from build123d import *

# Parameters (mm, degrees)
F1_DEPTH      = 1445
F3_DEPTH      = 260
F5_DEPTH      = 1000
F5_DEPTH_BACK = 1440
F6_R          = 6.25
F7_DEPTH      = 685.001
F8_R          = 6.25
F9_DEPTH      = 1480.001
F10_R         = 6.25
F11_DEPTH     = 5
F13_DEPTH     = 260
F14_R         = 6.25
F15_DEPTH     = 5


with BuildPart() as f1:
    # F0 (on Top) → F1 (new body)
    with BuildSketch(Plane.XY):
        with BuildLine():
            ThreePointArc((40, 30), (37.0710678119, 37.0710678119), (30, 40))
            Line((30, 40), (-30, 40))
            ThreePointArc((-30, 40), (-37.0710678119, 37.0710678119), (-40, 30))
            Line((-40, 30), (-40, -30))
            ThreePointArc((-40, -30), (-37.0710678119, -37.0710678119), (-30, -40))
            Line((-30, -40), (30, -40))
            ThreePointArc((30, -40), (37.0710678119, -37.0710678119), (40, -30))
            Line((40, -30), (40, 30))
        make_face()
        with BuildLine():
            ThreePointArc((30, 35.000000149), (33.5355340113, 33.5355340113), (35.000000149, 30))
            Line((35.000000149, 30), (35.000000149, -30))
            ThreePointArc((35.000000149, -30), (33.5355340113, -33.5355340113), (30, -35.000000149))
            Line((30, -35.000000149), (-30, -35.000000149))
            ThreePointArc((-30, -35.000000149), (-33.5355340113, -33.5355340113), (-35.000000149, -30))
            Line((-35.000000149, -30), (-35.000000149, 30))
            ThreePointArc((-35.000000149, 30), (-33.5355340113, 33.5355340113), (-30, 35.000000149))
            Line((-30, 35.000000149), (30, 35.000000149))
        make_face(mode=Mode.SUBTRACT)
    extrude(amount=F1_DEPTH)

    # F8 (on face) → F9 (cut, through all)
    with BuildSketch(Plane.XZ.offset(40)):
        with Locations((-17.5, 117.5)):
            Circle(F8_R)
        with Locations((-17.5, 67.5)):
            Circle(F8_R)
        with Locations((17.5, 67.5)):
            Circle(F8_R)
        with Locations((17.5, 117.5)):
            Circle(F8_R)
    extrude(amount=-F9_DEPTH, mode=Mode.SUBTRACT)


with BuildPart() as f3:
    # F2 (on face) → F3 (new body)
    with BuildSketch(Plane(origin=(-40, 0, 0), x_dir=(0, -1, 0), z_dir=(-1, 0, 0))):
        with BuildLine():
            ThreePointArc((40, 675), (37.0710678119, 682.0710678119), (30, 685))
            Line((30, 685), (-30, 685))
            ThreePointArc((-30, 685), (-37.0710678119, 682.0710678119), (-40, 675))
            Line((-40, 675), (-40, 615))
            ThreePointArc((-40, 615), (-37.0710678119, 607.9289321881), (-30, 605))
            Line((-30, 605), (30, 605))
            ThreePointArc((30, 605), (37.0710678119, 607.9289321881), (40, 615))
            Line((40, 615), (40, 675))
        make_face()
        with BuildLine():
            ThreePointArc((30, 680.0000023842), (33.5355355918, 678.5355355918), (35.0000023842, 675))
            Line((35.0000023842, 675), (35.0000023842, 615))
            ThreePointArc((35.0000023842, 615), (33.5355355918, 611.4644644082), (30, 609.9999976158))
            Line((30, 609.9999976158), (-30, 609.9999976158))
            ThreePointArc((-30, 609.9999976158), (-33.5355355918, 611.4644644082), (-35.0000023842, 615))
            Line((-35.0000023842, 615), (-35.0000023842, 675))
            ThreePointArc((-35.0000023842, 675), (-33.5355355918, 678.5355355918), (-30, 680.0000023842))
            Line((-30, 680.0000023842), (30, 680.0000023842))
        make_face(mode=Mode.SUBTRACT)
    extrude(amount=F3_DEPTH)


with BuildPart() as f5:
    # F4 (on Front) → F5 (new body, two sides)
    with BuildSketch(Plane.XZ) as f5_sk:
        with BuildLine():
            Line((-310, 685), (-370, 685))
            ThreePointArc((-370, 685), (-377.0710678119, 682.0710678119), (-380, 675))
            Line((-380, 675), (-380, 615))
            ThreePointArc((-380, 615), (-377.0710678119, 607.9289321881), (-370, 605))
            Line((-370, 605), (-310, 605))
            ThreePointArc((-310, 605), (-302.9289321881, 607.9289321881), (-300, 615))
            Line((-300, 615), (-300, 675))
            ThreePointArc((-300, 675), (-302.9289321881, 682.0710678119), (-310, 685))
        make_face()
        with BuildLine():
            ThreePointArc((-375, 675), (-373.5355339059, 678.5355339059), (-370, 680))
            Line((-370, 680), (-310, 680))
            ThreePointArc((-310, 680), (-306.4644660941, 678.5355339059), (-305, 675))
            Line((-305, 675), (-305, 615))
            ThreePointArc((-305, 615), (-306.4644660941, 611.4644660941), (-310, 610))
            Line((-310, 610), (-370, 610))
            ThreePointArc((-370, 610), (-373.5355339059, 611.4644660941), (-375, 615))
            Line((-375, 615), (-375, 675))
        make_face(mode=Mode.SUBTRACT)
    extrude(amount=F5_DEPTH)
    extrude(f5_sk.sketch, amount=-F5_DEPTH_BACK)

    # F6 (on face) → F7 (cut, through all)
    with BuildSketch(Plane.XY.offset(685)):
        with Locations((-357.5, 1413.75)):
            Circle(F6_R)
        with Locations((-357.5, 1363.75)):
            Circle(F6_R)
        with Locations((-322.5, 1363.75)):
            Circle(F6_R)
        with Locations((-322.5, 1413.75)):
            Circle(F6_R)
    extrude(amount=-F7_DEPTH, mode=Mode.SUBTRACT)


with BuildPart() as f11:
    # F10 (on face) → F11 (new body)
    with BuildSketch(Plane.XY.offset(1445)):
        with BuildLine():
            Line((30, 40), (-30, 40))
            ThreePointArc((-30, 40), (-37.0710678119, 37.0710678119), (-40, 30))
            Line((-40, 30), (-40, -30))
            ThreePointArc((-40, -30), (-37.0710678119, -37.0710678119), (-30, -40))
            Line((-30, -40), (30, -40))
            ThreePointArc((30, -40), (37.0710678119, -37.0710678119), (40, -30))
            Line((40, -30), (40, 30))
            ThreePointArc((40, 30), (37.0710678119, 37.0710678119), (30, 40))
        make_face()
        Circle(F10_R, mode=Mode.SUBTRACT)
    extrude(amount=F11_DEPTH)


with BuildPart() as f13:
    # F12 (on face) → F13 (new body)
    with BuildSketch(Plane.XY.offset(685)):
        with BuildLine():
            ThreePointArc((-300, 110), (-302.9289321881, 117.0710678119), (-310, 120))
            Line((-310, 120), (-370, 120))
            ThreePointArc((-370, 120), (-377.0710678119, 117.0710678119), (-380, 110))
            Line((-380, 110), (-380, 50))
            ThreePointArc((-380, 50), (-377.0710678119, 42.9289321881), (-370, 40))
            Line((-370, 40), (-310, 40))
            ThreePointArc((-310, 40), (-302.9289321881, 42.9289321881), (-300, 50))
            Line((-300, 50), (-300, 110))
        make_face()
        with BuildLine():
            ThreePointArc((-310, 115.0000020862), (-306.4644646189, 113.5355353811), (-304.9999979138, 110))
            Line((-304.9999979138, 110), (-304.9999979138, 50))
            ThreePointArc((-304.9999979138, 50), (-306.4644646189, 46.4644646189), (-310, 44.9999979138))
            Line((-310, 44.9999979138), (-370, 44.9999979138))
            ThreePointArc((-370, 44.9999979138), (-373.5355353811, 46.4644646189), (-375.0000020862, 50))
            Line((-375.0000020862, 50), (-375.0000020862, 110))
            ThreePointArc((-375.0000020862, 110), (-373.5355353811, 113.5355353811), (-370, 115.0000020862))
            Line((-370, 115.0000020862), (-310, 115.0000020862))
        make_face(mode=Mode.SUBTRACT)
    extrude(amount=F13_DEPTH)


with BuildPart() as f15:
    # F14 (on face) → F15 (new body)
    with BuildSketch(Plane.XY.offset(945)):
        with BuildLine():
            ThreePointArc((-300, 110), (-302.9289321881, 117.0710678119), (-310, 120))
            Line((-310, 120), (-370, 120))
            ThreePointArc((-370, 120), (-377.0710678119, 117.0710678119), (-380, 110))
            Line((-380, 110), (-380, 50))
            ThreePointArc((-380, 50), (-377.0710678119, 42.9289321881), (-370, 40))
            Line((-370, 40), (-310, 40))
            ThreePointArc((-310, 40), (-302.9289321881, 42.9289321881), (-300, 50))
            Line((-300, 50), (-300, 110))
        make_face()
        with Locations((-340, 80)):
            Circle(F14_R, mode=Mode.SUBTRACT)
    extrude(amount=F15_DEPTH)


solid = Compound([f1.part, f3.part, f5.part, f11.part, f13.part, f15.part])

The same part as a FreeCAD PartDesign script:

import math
import FreeCAD as App
import Part
import Sketcher
from FreeCAD import Vector

doc = App.newDocument("Part")
params = doc.addObject("Spreadsheet::Sheet", "Params")
for row, (alias, value) in enumerate([
    ("sketch1_radius", "10 mm"),
    ("sketch1_radius2", "5 mm"),
    ("sketch1_width", "60 mm"),
    ("pad1_length", "1445 mm"),
    ("sketch2_diameter", "12.5 mm"),
    ("sketch3_radius", "10 mm"),
    ("sketch3_width", "60 mm"),
    ("pad2_length", "260 mm"),
    ("sketch4_radius", "10 mm"),
    ("sketch4_radius2", "5 mm"),
    ("sketch4_width", "60 mm"),
    ("pad3_length", "1000 mm"),
    ("pad3_length2", "1440 mm"),
    ("sketch5_diameter", "12.5 mm"),
    ("sketch6_radius", "10 mm"),
    ("sketch6_diameter", "12.5 mm"),
    ("sketch6_width", "60 mm"),
    ("pad4_length", "5 mm"),
    ("sketch7_radius", "10 mm"),
    ("sketch7_width", "60 mm"),
    ("pad5_length", "260 mm"),
    ("sketch8_radius", "10 mm"),
    ("sketch8_diameter", "12.5 mm"),
    ("sketch8_width", "60 mm"),
    ("pad6_length", "5 mm"),
], start=1):
    params.set(f"A{row}", alias)
    params.set(f"B{row}", "=" + value)
    params.setAlias(f"B{row}", alias)

body = doc.addObject("PartDesign::Body", "Body")

# Sketch on XY plane
sketch1 = body.newObject("Sketcher::SketchObject", "Sketch")
sketch1.AttachmentSupport = (doc.getObject("XY_Plane"), [""])
sketch1.MapMode = "FlatFace"
sketch1.addGeometry(Part.ArcOfCircle(Part.Circle(Vector(30, 30, 0), Vector(0, 0, 1), 10), math.radians(0), math.radians(90)), False)
sketch1.addGeometry(Part.LineSegment(Vector(30, 40, 0), Vector(-30, 40, 0)), False)
sketch1.addGeometry(Part.ArcOfCircle(Part.Circle(Vector(-30, 30, 0), Vector(0, 0, 1), 10), math.radians(90), math.radians(180)), False)
sketch1.addGeometry(Part.LineSegment(Vector(-40, 30, 0), Vector(-40, -30, 0)), False)
sketch1.addGeometry(Part.ArcOfCircle(Part.Circle(Vector(-30, -30, 0), Vector(0, 0, 1), 10), math.radians(180), math.radians(270)), False)
sketch1.addGeometry(Part.LineSegment(Vector(-30, -40, 0), Vector(30, -40, 0)), False)
sketch1.addGeometry(Part.ArcOfCircle(Part.Circle(Vector(30, -30, 0), Vector(0, 0, 1), 10), math.radians(-90), math.radians(0)), False)
sketch1.addGeometry(Part.LineSegment(Vector(40, -30, 0), Vector(40, 30, 0)), False)
sketch1.addGeometry(Part.LineSegment(Vector(-30, 35, 0), Vector(30, 35, 0)), False)
sketch1.addGeometry(Part.ArcOfCircle(Part.Circle(Vector(30, 30, 0), Vector(0, 0, 1), 5), math.radians(0), math.radians(90)), False)
sketch1.addGeometry(Part.LineSegment(Vector(35, 30, 0), Vector(35, -30, 0)), False)
sketch1.addGeometry(Part.ArcOfCircle(Part.Circle(Vector(30, -30, 0), Vector(0, 0, 1), 5), math.radians(-90), math.radians(0)), False)
sketch1.addGeometry(Part.LineSegment(Vector(30, -35, 0), Vector(-30, -35, 0)), False)
sketch1.addGeometry(Part.ArcOfCircle(Part.Circle(Vector(-30, -30, 0), Vector(0, 0, 1), 5), math.radians(180), math.radians(270)), False)
sketch1.addGeometry(Part.LineSegment(Vector(-35, -30, 0), Vector(-35, 30, 0)), False)
sketch1.addGeometry(Part.ArcOfCircle(Part.Circle(Vector(-30, 30, 0), Vector(0, 0, 1), 5), math.radians(90), math.radians(180)), False)
sketch1.addConstraint(Sketcher.Constraint("Tangent", 0, 2, 1, 1))
sketch1.addConstraint(Sketcher.Constraint("Tangent", 1, 2, 2, 1))
sketch1.addConstraint(Sketcher.Constraint("Tangent", 2, 2, 3, 1))
sketch1.addConstraint(Sketcher.Constraint("Tangent", 3, 2, 4, 1))
sketch1.addConstraint(Sketcher.Constraint("Tangent", 4, 2, 5, 1))
sketch1.addConstraint(Sketcher.Constraint("Tangent", 5, 2, 6, 1))
sketch1.addConstraint(Sketcher.Constraint("Tangent", 6, 2, 7, 1))
sketch1.addConstraint(Sketcher.Constraint("Tangent", 7, 2, 0, 1))
sketch1.addConstraint(Sketcher.Constraint("Tangent", 8, 2, 9, 2))
sketch1.addConstraint(Sketcher.Constraint("Tangent", 9, 1, 10, 1))
sketch1.addConstraint(Sketcher.Constraint("Tangent", 10, 2, 11, 2))
sketch1.addConstraint(Sketcher.Constraint("Tangent", 11, 1, 12, 1))
sketch1.addConstraint(Sketcher.Constraint("Tangent", 12, 2, 13, 2))
sketch1.addConstraint(Sketcher.Constraint("Tangent", 13, 1, 14, 1))
sketch1.addConstraint(Sketcher.Constraint("Tangent", 14, 2, 15, 2))
sketch1.addConstraint(Sketcher.Constraint("Tangent", 15, 1, 8, 1))
sketch1.addConstraint(Sketcher.Constraint("Horizontal", 1))
sketch1.addConstraint(Sketcher.Constraint("Vertical", 3))
sketch1.addConstraint(Sketcher.Constraint("Horizontal", 5))
sketch1.addConstraint(Sketcher.Constraint("Vertical", 7))
sketch1.addConstraint(Sketcher.Constraint("Horizontal", 8))
sketch1.addConstraint(Sketcher.Constraint("Vertical", 10))
sketch1.addConstraint(Sketcher.Constraint("Horizontal", 12))
sketch1.addConstraint(Sketcher.Constraint("Vertical", 14))
sketch1.addConstraint(Sketcher.Constraint("Coincident", 9, 3, 0, 3))
sketch1.addConstraint(Sketcher.Constraint("Coincident", 11, 3, 6, 3))
sketch1.addConstraint(Sketcher.Constraint("Coincident", 13, 3, 4, 3))
sketch1.addConstraint(Sketcher.Constraint("Equal", 0, 2))
sketch1.addConstraint(Sketcher.Constraint("Equal", 2, 4))
sketch1.addConstraint(Sketcher.Constraint("Equal", 4, 6))
sketch1.addConstraint(Sketcher.Constraint("Equal", 13, 15))
sketch1.addConstraint(Sketcher.Constraint("Symmetric", 0, 3, 4, 3, -1, 1))
sketch1.addConstraint(Sketcher.Constraint("Equal", 12, 3))
sketch1.addConstraint(Sketcher.Constraint("Radius", 0, 10.0))
sketch1.addConstraint(Sketcher.Constraint("Radius", 9, 5.0))
sketch1.addConstraint(Sketcher.Constraint("DistanceX", 1, 2, 1, 1, 60.0))
sketch1.setExpression("Constraints[33]", "Params.sketch1_radius")
sketch1.setExpression("Constraints[34]", "Params.sketch1_radius2")
sketch1.setExpression("Constraints[35]", "Params.sketch1_width")
pad1 = body.newObject("PartDesign::Pad", "Pad")
pad1.Profile = sketch1
pad1.setExpression("Length", "Params.pad1_length")

# Sketch on XZ plane
sketch2 = body.newObject("Sketcher::SketchObject", "Sketch001")
sketch2.AttachmentSupport = (doc.getObject("XZ_Plane"), [""])
sketch2.MapMode = "FlatFace"
sketch2.AttachmentOffset = App.Placement(Vector(0, 0, 40), App.Rotation())
sketch2.addGeometry(Part.Circle(Vector(-18, 118, 0), Vector(0, 0, 1), 6), False)
sketch2.addGeometry(Part.Circle(Vector(-18, 68, 0), Vector(0, 0, 1), 6), False)
sketch2.addGeometry(Part.Circle(Vector(18, 68, 0), Vector(0, 0, 1), 6), False)
sketch2.addGeometry(Part.Circle(Vector(18, 118, 0), Vector(0, 0, 1), 6), False)
sketch2.addConstraint(Sketcher.Constraint("Equal", 0, 1))
sketch2.addConstraint(Sketcher.Constraint("Equal", 1, 2))
sketch2.addConstraint(Sketcher.Constraint("Equal", 2, 3))
sketch2.addConstraint(Sketcher.Constraint("Symmetric", 1, 3, 2, 3, -2))
sketch2.addConstraint(Sketcher.Constraint("Symmetric", 0, 3, 3, 3, -2))
sketch2.addConstraint(Sketcher.Constraint("Vertical", 0, 3, 1, 3))
sketch2.addConstraint(Sketcher.Constraint("Diameter", 0, 12.5))
sketch2.addConstraint(Sketcher.Constraint("DistanceY", 1, 3, 0, 3, 50.0))
sketch2.addConstraint(Sketcher.Constraint("DistanceX", 1, 3, 2, 3, 35.0))
sketch2.addConstraint(Sketcher.Constraint("DistanceY", -1, 1, 0, 3, 117.5))
sketch2.setExpression("Constraints[6]", "Params.sketch2_diameter")
pocket1 = body.newObject("PartDesign::Pocket", "Pocket")
pocket1.Profile = sketch2
pocket1.Type = "ThroughAll"
body2 = doc.addObject("PartDesign::Body", "Body001")

# Sketch on YZ plane
sketch3 = body2.newObject("Sketcher::SketchObject", "Sketch002")
sketch3.AttachmentSupport = (doc.getObject("YZ_Plane001"), [""])
sketch3.MapMode = "FlatFace"
sketch3.AttachmentOffset = App.Placement(Vector(0, 0, -40), App.Rotation())
sketch3.addGeometry(Part.ArcOfCircle(Part.Circle(Vector(-30, 675, 0), Vector(0, 0, 1), 10), math.radians(90), math.radians(180)), False)
sketch3.addGeometry(Part.LineSegment(Vector(-30, 685, 0), Vector(30, 685, 0)), False)
sketch3.addGeometry(Part.ArcOfCircle(Part.Circle(Vector(30, 675, 0), Vector(0, 0, 1), 10), math.radians(0), math.radians(90)), False)
sketch3.addGeometry(Part.LineSegment(Vector(40, 675, 0), Vector(40, 615, 0)), False)
sketch3.addGeometry(Part.ArcOfCircle(Part.Circle(Vector(30, 615, 0), Vector(0, 0, 1), 10), math.radians(-90), math.radians(0)), False)
sketch3.addGeometry(Part.LineSegment(Vector(30, 605, 0), Vector(-30, 605, 0)), False)
sketch3.addGeometry(Part.ArcOfCircle(Part.Circle(Vector(-30, 615, 0), Vector(0, 0, 1), 10), math.radians(180), math.radians(270)), False)
sketch3.addGeometry(Part.LineSegment(Vector(-40, 615, 0), Vector(-40, 675, 0)), False)
sketch3.addGeometry(Part.LineSegment(Vector(30, 680, 0), Vector(-30, 680, 0)), False)
sketch3.addGeometry(Part.ArcOfCircle(Part.Circle(Vector(-30, 675, 0), Vector(0, 0, 1), 5), math.radians(90), math.radians(180)), False)
sketch3.addGeometry(Part.LineSegment(Vector(-35, 675, 0), Vector(-35, 615, 0)), False)
sketch3.addGeometry(Part.ArcOfCircle(Part.Circle(Vector(-30, 615, 0), Vector(0, 0, 1), 5), math.radians(180), math.radians(270)), False)
sketch3.addGeometry(Part.LineSegment(Vector(-30, 610, 0), Vector(30, 610, 0)), False)
sketch3.addGeometry(Part.ArcOfCircle(Part.Circle(Vector(30, 615, 0), Vector(0, 0, 1), 5), math.radians(-90), math.radians(0)), False)
sketch3.addGeometry(Part.LineSegment(Vector(35, 615, 0), Vector(35, 675, 0)), False)
sketch3.addGeometry(Part.ArcOfCircle(Part.Circle(Vector(30, 675, 0), Vector(0, 0, 1), 5), math.radians(0), math.radians(90)), False)
sketch3.addConstraint(Sketcher.Constraint("Tangent", 0, 1, 1, 1))
sketch3.addConstraint(Sketcher.Constraint("Tangent", 1, 2, 2, 2))
sketch3.addConstraint(Sketcher.Constraint("Tangent", 2, 1, 3, 1))
sketch3.addConstraint(Sketcher.Constraint("Tangent", 3, 2, 4, 2))
sketch3.addConstraint(Sketcher.Constraint("Tangent", 4, 1, 5, 1))
sketch3.addConstraint(Sketcher.Constraint("Tangent", 5, 2, 6, 2))
sketch3.addConstraint(Sketcher.Constraint("Tangent", 6, 1, 7, 1))
sketch3.addConstraint(Sketcher.Constraint("Tangent", 7, 2, 0, 2))
sketch3.addConstraint(Sketcher.Constraint("Tangent", 8, 2, 9, 1))
sketch3.addConstraint(Sketcher.Constraint("Tangent", 9, 2, 10, 1))
sketch3.addConstraint(Sketcher.Constraint("Tangent", 10, 2, 11, 1))
sketch3.addConstraint(Sketcher.Constraint("Tangent", 11, 2, 12, 1))
sketch3.addConstraint(Sketcher.Constraint("Tangent", 12, 2, 13, 1))
sketch3.addConstraint(Sketcher.Constraint("Tangent", 13, 2, 14, 1))
sketch3.addConstraint(Sketcher.Constraint("Tangent", 14, 2, 15, 1))
sketch3.addConstraint(Sketcher.Constraint("Tangent", 15, 2, 8, 1))
sketch3.addConstraint(Sketcher.Constraint("Horizontal", 1))
sketch3.addConstraint(Sketcher.Constraint("Vertical", 3))
sketch3.addConstraint(Sketcher.Constraint("Horizontal", 5))
sketch3.addConstraint(Sketcher.Constraint("Vertical", 7))
sketch3.addConstraint(Sketcher.Constraint("Horizontal", 8))
sketch3.addConstraint(Sketcher.Constraint("Vertical", 10))
sketch3.addConstraint(Sketcher.Constraint("Horizontal", 12))
sketch3.addConstraint(Sketcher.Constraint("Vertical", 14))
sketch3.addConstraint(Sketcher.Constraint("Coincident", 9, 3, 0, 3))
sketch3.addConstraint(Sketcher.Constraint("Coincident", 11, 3, 6, 3))
sketch3.addConstraint(Sketcher.Constraint("Coincident", 13, 3, 4, 3))
sketch3.addConstraint(Sketcher.Constraint("Equal", 0, 2))
sketch3.addConstraint(Sketcher.Constraint("Equal", 2, 4))
sketch3.addConstraint(Sketcher.Constraint("Equal", 4, 6))
sketch3.addConstraint(Sketcher.Constraint("Equal", 13, 15))
sketch3.addConstraint(Sketcher.Constraint("Equal", 12, 3))
sketch3.addConstraint(Sketcher.Constraint("Radius", 0, 10.0))
sketch3.addConstraint(Sketcher.Constraint("DistanceX", 1, 1, 1, 2, 60.0))
sketch3.addConstraint(Sketcher.Constraint("DistanceX", 0, 3, -1, 1, 30.0))
sketch3.addConstraint(Sketcher.Constraint("DistanceY", -1, 1, 0, 3, 675.0))
sketch3.addConstraint(Sketcher.Constraint("Radius", 9, 5.000002))
sketch3.setExpression("Constraints[32]", "Params.sketch3_radius")
sketch3.setExpression("Constraints[33]", "Params.sketch3_width")
pad2 = body2.newObject("PartDesign::Pad", "Pad001")
pad2.Profile = sketch3
pad2.setExpression("Length", "Params.pad2_length")
pad2.Reversed = True
body3 = doc.addObject("PartDesign::Body", "Body002")

# Sketch on XZ plane
sketch4 = body3.newObject("Sketcher::SketchObject", "Sketch003")
sketch4.AttachmentSupport = (doc.getObject("XZ_Plane002"), [""])
sketch4.MapMode = "FlatFace"
sketch4.addGeometry(Part.LineSegment(Vector(-310, 685, 0), Vector(-370, 685, 0)), False)
sketch4.addGeometry(Part.ArcOfCircle(Part.Circle(Vector(-370, 675, 0), Vector(0, 0, 1), 10), math.radians(90), math.radians(180)), False)
sketch4.addGeometry(Part.LineSegment(Vector(-380, 675, 0), Vector(-380, 615, 0)), False)
sketch4.addGeometry(Part.ArcOfCircle(Part.Circle(Vector(-370, 615, 0), Vector(0, 0, 1), 10), math.radians(180), math.radians(270)), False)
sketch4.addGeometry(Part.LineSegment(Vector(-370, 605, 0), Vector(-310, 605, 0)), False)
sketch4.addGeometry(Part.ArcOfCircle(Part.Circle(Vector(-310, 615, 0), Vector(0, 0, 1), 10), math.radians(-90), math.radians(0)), False)
sketch4.addGeometry(Part.LineSegment(Vector(-300, 615, 0), Vector(-300, 675, 0)), False)
sketch4.addGeometry(Part.ArcOfCircle(Part.Circle(Vector(-310, 675, 0), Vector(0, 0, 1), 10), math.radians(0), math.radians(90)), False)
sketch4.addGeometry(Part.LineSegment(Vector(-375, 615, 0), Vector(-375, 675, 0)), False)
sketch4.addGeometry(Part.ArcOfCircle(Part.Circle(Vector(-370, 675, 0), Vector(0, 0, 1), 5), math.radians(90), math.radians(180)), False)
sketch4.addGeometry(Part.LineSegment(Vector(-370, 680, 0), Vector(-310, 680, 0)), False)
sketch4.addGeometry(Part.ArcOfCircle(Part.Circle(Vector(-310, 675, 0), Vector(0, 0, 1), 5), math.radians(0), math.radians(90)), False)
sketch4.addGeometry(Part.LineSegment(Vector(-305, 675, 0), Vector(-305, 615, 0)), False)
sketch4.addGeometry(Part.ArcOfCircle(Part.Circle(Vector(-310, 615, 0), Vector(0, 0, 1), 5), math.radians(-90), math.radians(0)), False)
sketch4.addGeometry(Part.LineSegment(Vector(-310, 610, 0), Vector(-370, 610, 0)), False)
sketch4.addGeometry(Part.ArcOfCircle(Part.Circle(Vector(-370, 615, 0), Vector(0, 0, 1), 5), math.radians(180), math.radians(270)), False)
sketch4.addConstraint(Sketcher.Constraint("Tangent", 0, 2, 1, 1))
sketch4.addConstraint(Sketcher.Constraint("Tangent", 1, 2, 2, 1))
sketch4.addConstraint(Sketcher.Constraint("Tangent", 2, 2, 3, 1))
sketch4.addConstraint(Sketcher.Constraint("Tangent", 3, 2, 4, 1))
sketch4.addConstraint(Sketcher.Constraint("Tangent", 4, 2, 5, 1))
sketch4.addConstraint(Sketcher.Constraint("Tangent", 5, 2, 6, 1))
sketch4.addConstraint(Sketcher.Constraint("Tangent", 6, 2, 7, 1))
sketch4.addConstraint(Sketcher.Constraint("Tangent", 7, 2, 0, 1))
sketch4.addConstraint(Sketcher.Constraint("Tangent", 8, 2, 9, 2))
sketch4.addConstraint(Sketcher.Constraint("Tangent", 9, 1, 10, 1))
sketch4.addConstraint(Sketcher.Constraint("Tangent", 10, 2, 11, 2))
sketch4.addConstraint(Sketcher.Constraint("Tangent", 11, 1, 12, 1))
sketch4.addConstraint(Sketcher.Constraint("Tangent", 12, 2, 13, 2))
sketch4.addConstraint(Sketcher.Constraint("Tangent", 13, 1, 14, 1))
sketch4.addConstraint(Sketcher.Constraint("Tangent", 14, 2, 15, 2))
sketch4.addConstraint(Sketcher.Constraint("Tangent", 15, 1, 8, 1))
sketch4.addConstraint(Sketcher.Constraint("Horizontal", 0))
sketch4.addConstraint(Sketcher.Constraint("Vertical", 2))
sketch4.addConstraint(Sketcher.Constraint("Horizontal", 4))
sketch4.addConstraint(Sketcher.Constraint("Vertical", 6))
sketch4.addConstraint(Sketcher.Constraint("Vertical", 8))
sketch4.addConstraint(Sketcher.Constraint("Horizontal", 10))
sketch4.addConstraint(Sketcher.Constraint("Vertical", 12))
sketch4.addConstraint(Sketcher.Constraint("Horizontal", 14))
sketch4.addConstraint(Sketcher.Constraint("Coincident", 9, 3, 1, 3))
sketch4.addConstraint(Sketcher.Constraint("Coincident", 11, 3, 7, 3))
sketch4.addConstraint(Sketcher.Constraint("Coincident", 13, 3, 5, 3))
sketch4.addConstraint(Sketcher.Constraint("Equal", 1, 3))
sketch4.addConstraint(Sketcher.Constraint("Equal", 3, 5))
sketch4.addConstraint(Sketcher.Constraint("Equal", 5, 7))
sketch4.addConstraint(Sketcher.Constraint("Equal", 13, 15))
sketch4.addConstraint(Sketcher.Constraint("Equal", 14, 2))
sketch4.addConstraint(Sketcher.Constraint("Radius", 1, 10.0))
sketch4.addConstraint(Sketcher.Constraint("Radius", 9, 5.0))
sketch4.addConstraint(Sketcher.Constraint("DistanceX", 0, 2, 0, 1, 60.0))
sketch4.addConstraint(Sketcher.Constraint("DistanceX", 1, 3, -1, 1, 370.0))
sketch4.addConstraint(Sketcher.Constraint("DistanceY", -1, 1, 1, 3, 675.0))
sketch4.setExpression("Constraints[32]", "Params.sketch4_radius")
sketch4.setExpression("Constraints[33]", "Params.sketch4_radius2")
sketch4.setExpression("Constraints[34]", "Params.sketch4_width")
pad3 = body3.newObject("PartDesign::Pad", "Pad002")
pad3.Profile = sketch4
pad3.Type = "TwoLengths"
pad3.setExpression("Length", "Params.pad3_length")
pad3.setExpression("Length2", "Params.pad3_length2")

# Sketch on XY plane
sketch5 = body3.newObject("Sketcher::SketchObject", "Sketch004")
sketch5.AttachmentSupport = (doc.getObject("XY_Plane002"), [""])
sketch5.MapMode = "FlatFace"
sketch5.AttachmentOffset = App.Placement(Vector(0, 0, 685), App.Rotation())
sketch5.addGeometry(Part.Circle(Vector(-358, 1414, 0), Vector(0, 0, 1), 6), False)
sketch5.addGeometry(Part.Circle(Vector(-358, 1364, 0), Vector(0, 0, 1), 6), False)
sketch5.addGeometry(Part.Circle(Vector(-322, 1364, 0), Vector(0, 0, 1), 6), False)
sketch5.addGeometry(Part.Circle(Vector(-322, 1414, 0), Vector(0, 0, 1), 6), False)
sketch5.addConstraint(Sketcher.Constraint("Equal", 0, 1))
sketch5.addConstraint(Sketcher.Constraint("Equal", 1, 2))
sketch5.addConstraint(Sketcher.Constraint("Equal", 2, 3))
sketch5.addConstraint(Sketcher.Constraint("Horizontal", 1, 3, 2, 3))
sketch5.addConstraint(Sketcher.Constraint("Horizontal", 0, 3, 3, 3))
sketch5.addConstraint(Sketcher.Constraint("Vertical", 0, 3, 1, 3))
sketch5.addConstraint(Sketcher.Constraint("Vertical", 2, 3, 3, 3))
sketch5.addConstraint(Sketcher.Constraint("Diameter", 0, 12.5))
sketch5.addConstraint(Sketcher.Constraint("DistanceY", 1, 3, 0, 3, 50.0))
sketch5.addConstraint(Sketcher.Constraint("DistanceX", 1, 3, 2, 3, 35.0))
sketch5.addConstraint(Sketcher.Constraint("DistanceX", 0, 3, -1, 1, 357.5))
sketch5.addConstraint(Sketcher.Constraint("DistanceY", -1, 1, 0, 3, 1413.75))
sketch5.setExpression("Constraints[7]", "Params.sketch5_diameter")
pocket2 = body3.newObject("PartDesign::Pocket", "Pocket001")
pocket2.Profile = sketch5
pocket2.Type = "ThroughAll"
body4 = doc.addObject("PartDesign::Body", "Body003")

# Sketch on XY plane
sketch6 = body4.newObject("Sketcher::SketchObject", "Sketch005")
sketch6.AttachmentSupport = (doc.getObject("XY_Plane003"), [""])
sketch6.MapMode = "FlatFace"
sketch6.AttachmentOffset = App.Placement(Vector(0, 0, 1445), App.Rotation())
sketch6.addGeometry(Part.LineSegment(Vector(30, 40, 0), Vector(-30, 40, 0)), False)
sketch6.addGeometry(Part.ArcOfCircle(Part.Circle(Vector(-30, 30, 0), Vector(0, 0, 1), 10), math.radians(90), math.radians(180)), False)
sketch6.addGeometry(Part.LineSegment(Vector(-40, 30, 0), Vector(-40, -30, 0)), False)
sketch6.addGeometry(Part.ArcOfCircle(Part.Circle(Vector(-30, -30, 0), Vector(0, 0, 1), 10), math.radians(180), math.radians(270)), False)
sketch6.addGeometry(Part.LineSegment(Vector(-30, -40, 0), Vector(30, -40, 0)), False)
sketch6.addGeometry(Part.ArcOfCircle(Part.Circle(Vector(30, -30, 0), Vector(0, 0, 1), 10), math.radians(-90), math.radians(0)), False)
sketch6.addGeometry(Part.LineSegment(Vector(40, -30, 0), Vector(40, 30, 0)), False)
sketch6.addGeometry(Part.ArcOfCircle(Part.Circle(Vector(30, 30, 0), Vector(0, 0, 1), 10), math.radians(0), math.radians(90)), False)
sketch6.addGeometry(Part.Circle(Vector(0, 0, 0), Vector(0, 0, 1), 6), False)
sketch6.addConstraint(Sketcher.Constraint("Tangent", 0, 2, 1, 1))
sketch6.addConstraint(Sketcher.Constraint("Tangent", 1, 2, 2, 1))
sketch6.addConstraint(Sketcher.Constraint("Tangent", 2, 2, 3, 1))
sketch6.addConstraint(Sketcher.Constraint("Tangent", 3, 2, 4, 1))
sketch6.addConstraint(Sketcher.Constraint("Tangent", 4, 2, 5, 1))
sketch6.addConstraint(Sketcher.Constraint("Tangent", 5, 2, 6, 1))
sketch6.addConstraint(Sketcher.Constraint("Tangent", 6, 2, 7, 1))
sketch6.addConstraint(Sketcher.Constraint("Tangent", 7, 2, 0, 1))
sketch6.addConstraint(Sketcher.Constraint("Horizontal", 0))
sketch6.addConstraint(Sketcher.Constraint("Vertical", 2))
sketch6.addConstraint(Sketcher.Constraint("Horizontal", 4))
sketch6.addConstraint(Sketcher.Constraint("Vertical", 6))
sketch6.addConstraint(Sketcher.Constraint("Coincident", 8, 3, -1, 1))
sketch6.addConstraint(Sketcher.Constraint("Equal", 1, 3))
sketch6.addConstraint(Sketcher.Constraint("Equal", 3, 5))
sketch6.addConstraint(Sketcher.Constraint("Equal", 5, 7))
sketch6.addConstraint(Sketcher.Constraint("Symmetric", 1, 3, 5, 3, -1, 1))
sketch6.addConstraint(Sketcher.Constraint("Equal", 4, 2))
sketch6.addConstraint(Sketcher.Constraint("Radius", 1, 10.0))
sketch6.addConstraint(Sketcher.Constraint("Diameter", 8, 12.5))
sketch6.addConstraint(Sketcher.Constraint("DistanceX", 0, 2, 0, 1, 60.0))
sketch6.setExpression("Constraints[18]", "Params.sketch6_radius")
sketch6.setExpression("Constraints[19]", "Params.sketch6_diameter")
sketch6.setExpression("Constraints[20]", "Params.sketch6_width")
pad4 = body4.newObject("PartDesign::Pad", "Pad003")
pad4.Profile = sketch6
pad4.setExpression("Length", "Params.pad4_length")
body5 = doc.addObject("PartDesign::Body", "Body004")

# Sketch on XY plane
sketch7 = body5.newObject("Sketcher::SketchObject", "Sketch006")
sketch7.AttachmentSupport = (doc.getObject("XY_Plane004"), [""])
sketch7.MapMode = "FlatFace"
sketch7.AttachmentOffset = App.Placement(Vector(0, 0, 685), App.Rotation())
sketch7.addGeometry(Part.ArcOfCircle(Part.Circle(Vector(-310, 110, 0), Vector(0, 0, 1), 10), math.radians(0), math.radians(90)), False)
sketch7.addGeometry(Part.LineSegment(Vector(-310, 120, 0), Vector(-370, 120, 0)), False)
sketch7.addGeometry(Part.ArcOfCircle(Part.Circle(Vector(-370, 110, 0), Vector(0, 0, 1), 10), math.radians(90), math.radians(180)), False)
sketch7.addGeometry(Part.LineSegment(Vector(-380, 110, 0), Vector(-380, 50, 0)), False)
sketch7.addGeometry(Part.ArcOfCircle(Part.Circle(Vector(-370, 50, 0), Vector(0, 0, 1), 10), math.radians(180), math.radians(270)), False)
sketch7.addGeometry(Part.LineSegment(Vector(-370, 40, 0), Vector(-310, 40, 0)), False)
sketch7.addGeometry(Part.ArcOfCircle(Part.Circle(Vector(-310, 50, 0), Vector(0, 0, 1), 10), math.radians(-90), math.radians(0)), False)
sketch7.addGeometry(Part.LineSegment(Vector(-300, 50, 0), Vector(-300, 110, 0)), False)
sketch7.addGeometry(Part.LineSegment(Vector(-370, 115, 0), Vector(-310, 115, 0)), False)
sketch7.addGeometry(Part.ArcOfCircle(Part.Circle(Vector(-310, 110, 0), Vector(0, 0, 1), 5), math.radians(0), math.radians(90)), False)
sketch7.addGeometry(Part.LineSegment(Vector(-305, 110, 0), Vector(-305, 50, 0)), False)
sketch7.addGeometry(Part.ArcOfCircle(Part.Circle(Vector(-310, 50, 0), Vector(0, 0, 1), 5), math.radians(-90), math.radians(0)), False)
sketch7.addGeometry(Part.LineSegment(Vector(-310, 45, 0), Vector(-370, 45, 0)), False)
sketch7.addGeometry(Part.ArcOfCircle(Part.Circle(Vector(-370, 50, 0), Vector(0, 0, 1), 5), math.radians(180), math.radians(270)), False)
sketch7.addGeometry(Part.LineSegment(Vector(-375, 50, 0), Vector(-375, 110, 0)), False)
sketch7.addGeometry(Part.ArcOfCircle(Part.Circle(Vector(-370, 110, 0), Vector(0, 0, 1), 5), math.radians(90), math.radians(180)), False)
sketch7.addConstraint(Sketcher.Constraint("Tangent", 0, 2, 1, 1))
sketch7.addConstraint(Sketcher.Constraint("Tangent", 1, 2, 2, 1))
sketch7.addConstraint(Sketcher.Constraint("Tangent", 2, 2, 3, 1))
sketch7.addConstraint(Sketcher.Constraint("Tangent", 3, 2, 4, 1))
sketch7.addConstraint(Sketcher.Constraint("Tangent", 4, 2, 5, 1))
sketch7.addConstraint(Sketcher.Constraint("Tangent", 5, 2, 6, 1))
sketch7.addConstraint(Sketcher.Constraint("Tangent", 6, 2, 7, 1))
sketch7.addConstraint(Sketcher.Constraint("Tangent", 7, 2, 0, 1))
sketch7.addConstraint(Sketcher.Constraint("Tangent", 8, 2, 9, 2))
sketch7.addConstraint(Sketcher.Constraint("Tangent", 9, 1, 10, 1))
sketch7.addConstraint(Sketcher.Constraint("Tangent", 10, 2, 11, 2))
sketch7.addConstraint(Sketcher.Constraint("Tangent", 11, 1, 12, 1))
sketch7.addConstraint(Sketcher.Constraint("Tangent", 12, 2, 13, 2))
sketch7.addConstraint(Sketcher.Constraint("Tangent", 13, 1, 14, 1))
sketch7.addConstraint(Sketcher.Constraint("Tangent", 14, 2, 15, 2))
sketch7.addConstraint(Sketcher.Constraint("Tangent", 15, 1, 8, 1))
sketch7.addConstraint(Sketcher.Constraint("Horizontal", 1))
sketch7.addConstraint(Sketcher.Constraint("Vertical", 3))
sketch7.addConstraint(Sketcher.Constraint("Horizontal", 5))
sketch7.addConstraint(Sketcher.Constraint("Vertical", 7))
sketch7.addConstraint(Sketcher.Constraint("Horizontal", 8))
sketch7.addConstraint(Sketcher.Constraint("Vertical", 10))
sketch7.addConstraint(Sketcher.Constraint("Horizontal", 12))
sketch7.addConstraint(Sketcher.Constraint("Vertical", 14))
sketch7.addConstraint(Sketcher.Constraint("Coincident", 9, 3, 0, 3))
sketch7.addConstraint(Sketcher.Constraint("Coincident", 11, 3, 6, 3))
sketch7.addConstraint(Sketcher.Constraint("Coincident", 13, 3, 4, 3))
sketch7.addConstraint(Sketcher.Constraint("Equal", 0, 2))
sketch7.addConstraint(Sketcher.Constraint("Equal", 2, 4))
sketch7.addConstraint(Sketcher.Constraint("Equal", 4, 6))
sketch7.addConstraint(Sketcher.Constraint("Equal", 13, 15))
sketch7.addConstraint(Sketcher.Constraint("Equal", 12, 3))
sketch7.addConstraint(Sketcher.Constraint("Radius", 0, 10.0))
sketch7.addConstraint(Sketcher.Constraint("DistanceX", 1, 2, 1, 1, 60.0))
sketch7.addConstraint(Sketcher.Constraint("DistanceX", 0, 3, -1, 1, 310.0))
sketch7.addConstraint(Sketcher.Constraint("DistanceY", -1, 1, 0, 3, 110.0))
sketch7.addConstraint(Sketcher.Constraint("Radius", 9, 5.000002))
sketch7.setExpression("Constraints[32]", "Params.sketch7_radius")
sketch7.setExpression("Constraints[33]", "Params.sketch7_width")
pad5 = body5.newObject("PartDesign::Pad", "Pad004")
pad5.Profile = sketch7
pad5.setExpression("Length", "Params.pad5_length")
body6 = doc.addObject("PartDesign::Body", "Body005")

# Sketch on XY plane
sketch8 = body6.newObject("Sketcher::SketchObject", "Sketch007")
sketch8.AttachmentSupport = (doc.getObject("XY_Plane005"), [""])
sketch8.MapMode = "FlatFace"
sketch8.AttachmentOffset = App.Placement(Vector(0, 0, 945), App.Rotation())
sketch8.addGeometry(Part.ArcOfCircle(Part.Circle(Vector(-310, 110, 0), Vector(0, 0, 1), 10), math.radians(0), math.radians(90)), False)
sketch8.addGeometry(Part.LineSegment(Vector(-310, 120, 0), Vector(-370, 120, 0)), False)
sketch8.addGeometry(Part.ArcOfCircle(Part.Circle(Vector(-370, 110, 0), Vector(0, 0, 1), 10), math.radians(90), math.radians(180)), False)
sketch8.addGeometry(Part.LineSegment(Vector(-380, 110, 0), Vector(-380, 50, 0)), False)
sketch8.addGeometry(Part.ArcOfCircle(Part.Circle(Vector(-370, 50, 0), Vector(0, 0, 1), 10), math.radians(180), math.radians(270)), False)
sketch8.addGeometry(Part.LineSegment(Vector(-370, 40, 0), Vector(-310, 40, 0)), False)
sketch8.addGeometry(Part.ArcOfCircle(Part.Circle(Vector(-310, 50, 0), Vector(0, 0, 1), 10), math.radians(-90), math.radians(0)), False)
sketch8.addGeometry(Part.LineSegment(Vector(-300, 50, 0), Vector(-300, 110, 0)), False)
sketch8.addGeometry(Part.Circle(Vector(-340, 80, 0), Vector(0, 0, 1), 6), False)
sketch8.addConstraint(Sketcher.Constraint("Tangent", 0, 2, 1, 1))
sketch8.addConstraint(Sketcher.Constraint("Tangent", 1, 2, 2, 1))
sketch8.addConstraint(Sketcher.Constraint("Tangent", 2, 2, 3, 1))
sketch8.addConstraint(Sketcher.Constraint("Tangent", 3, 2, 4, 1))
sketch8.addConstraint(Sketcher.Constraint("Tangent", 4, 2, 5, 1))
sketch8.addConstraint(Sketcher.Constraint("Tangent", 5, 2, 6, 1))
sketch8.addConstraint(Sketcher.Constraint("Tangent", 6, 2, 7, 1))
sketch8.addConstraint(Sketcher.Constraint("Tangent", 7, 2, 0, 1))
sketch8.addConstraint(Sketcher.Constraint("Horizontal", 1))
sketch8.addConstraint(Sketcher.Constraint("Vertical", 3))
sketch8.addConstraint(Sketcher.Constraint("Horizontal", 5))
sketch8.addConstraint(Sketcher.Constraint("Vertical", 7))
sketch8.addConstraint(Sketcher.Constraint("Equal", 0, 2))
sketch8.addConstraint(Sketcher.Constraint("Equal", 2, 4))
sketch8.addConstraint(Sketcher.Constraint("Equal", 4, 6))
sketch8.addConstraint(Sketcher.Constraint("Equal", 5, 3))
sketch8.addConstraint(Sketcher.Constraint("Radius", 0, 10.0))
sketch8.addConstraint(Sketcher.Constraint("Diameter", 8, 12.5))
sketch8.addConstraint(Sketcher.Constraint("DistanceX", 1, 2, 1, 1, 60.0))
sketch8.addConstraint(Sketcher.Constraint("DistanceX", 0, 3, -1, 1, 310.0))
sketch8.addConstraint(Sketcher.Constraint("DistanceY", -1, 1, 0, 3, 110.0))
sketch8.addConstraint(Sketcher.Constraint("DistanceX", 8, 3, -1, 1, 340.0))
sketch8.addConstraint(Sketcher.Constraint("DistanceY", -1, 1, 8, 3, 80.0))
sketch8.setExpression("Constraints[16]", "Params.sketch8_radius")
sketch8.setExpression("Constraints[17]", "Params.sketch8_diameter")
sketch8.setExpression("Constraints[18]", "Params.sketch8_width")
pad6 = body6.newObject("PartDesign::Pad", "Pad005")
pad6.Profile = sketch8
pad6.setExpression("Length", "Params.pad6_length")

doc.recompute()
